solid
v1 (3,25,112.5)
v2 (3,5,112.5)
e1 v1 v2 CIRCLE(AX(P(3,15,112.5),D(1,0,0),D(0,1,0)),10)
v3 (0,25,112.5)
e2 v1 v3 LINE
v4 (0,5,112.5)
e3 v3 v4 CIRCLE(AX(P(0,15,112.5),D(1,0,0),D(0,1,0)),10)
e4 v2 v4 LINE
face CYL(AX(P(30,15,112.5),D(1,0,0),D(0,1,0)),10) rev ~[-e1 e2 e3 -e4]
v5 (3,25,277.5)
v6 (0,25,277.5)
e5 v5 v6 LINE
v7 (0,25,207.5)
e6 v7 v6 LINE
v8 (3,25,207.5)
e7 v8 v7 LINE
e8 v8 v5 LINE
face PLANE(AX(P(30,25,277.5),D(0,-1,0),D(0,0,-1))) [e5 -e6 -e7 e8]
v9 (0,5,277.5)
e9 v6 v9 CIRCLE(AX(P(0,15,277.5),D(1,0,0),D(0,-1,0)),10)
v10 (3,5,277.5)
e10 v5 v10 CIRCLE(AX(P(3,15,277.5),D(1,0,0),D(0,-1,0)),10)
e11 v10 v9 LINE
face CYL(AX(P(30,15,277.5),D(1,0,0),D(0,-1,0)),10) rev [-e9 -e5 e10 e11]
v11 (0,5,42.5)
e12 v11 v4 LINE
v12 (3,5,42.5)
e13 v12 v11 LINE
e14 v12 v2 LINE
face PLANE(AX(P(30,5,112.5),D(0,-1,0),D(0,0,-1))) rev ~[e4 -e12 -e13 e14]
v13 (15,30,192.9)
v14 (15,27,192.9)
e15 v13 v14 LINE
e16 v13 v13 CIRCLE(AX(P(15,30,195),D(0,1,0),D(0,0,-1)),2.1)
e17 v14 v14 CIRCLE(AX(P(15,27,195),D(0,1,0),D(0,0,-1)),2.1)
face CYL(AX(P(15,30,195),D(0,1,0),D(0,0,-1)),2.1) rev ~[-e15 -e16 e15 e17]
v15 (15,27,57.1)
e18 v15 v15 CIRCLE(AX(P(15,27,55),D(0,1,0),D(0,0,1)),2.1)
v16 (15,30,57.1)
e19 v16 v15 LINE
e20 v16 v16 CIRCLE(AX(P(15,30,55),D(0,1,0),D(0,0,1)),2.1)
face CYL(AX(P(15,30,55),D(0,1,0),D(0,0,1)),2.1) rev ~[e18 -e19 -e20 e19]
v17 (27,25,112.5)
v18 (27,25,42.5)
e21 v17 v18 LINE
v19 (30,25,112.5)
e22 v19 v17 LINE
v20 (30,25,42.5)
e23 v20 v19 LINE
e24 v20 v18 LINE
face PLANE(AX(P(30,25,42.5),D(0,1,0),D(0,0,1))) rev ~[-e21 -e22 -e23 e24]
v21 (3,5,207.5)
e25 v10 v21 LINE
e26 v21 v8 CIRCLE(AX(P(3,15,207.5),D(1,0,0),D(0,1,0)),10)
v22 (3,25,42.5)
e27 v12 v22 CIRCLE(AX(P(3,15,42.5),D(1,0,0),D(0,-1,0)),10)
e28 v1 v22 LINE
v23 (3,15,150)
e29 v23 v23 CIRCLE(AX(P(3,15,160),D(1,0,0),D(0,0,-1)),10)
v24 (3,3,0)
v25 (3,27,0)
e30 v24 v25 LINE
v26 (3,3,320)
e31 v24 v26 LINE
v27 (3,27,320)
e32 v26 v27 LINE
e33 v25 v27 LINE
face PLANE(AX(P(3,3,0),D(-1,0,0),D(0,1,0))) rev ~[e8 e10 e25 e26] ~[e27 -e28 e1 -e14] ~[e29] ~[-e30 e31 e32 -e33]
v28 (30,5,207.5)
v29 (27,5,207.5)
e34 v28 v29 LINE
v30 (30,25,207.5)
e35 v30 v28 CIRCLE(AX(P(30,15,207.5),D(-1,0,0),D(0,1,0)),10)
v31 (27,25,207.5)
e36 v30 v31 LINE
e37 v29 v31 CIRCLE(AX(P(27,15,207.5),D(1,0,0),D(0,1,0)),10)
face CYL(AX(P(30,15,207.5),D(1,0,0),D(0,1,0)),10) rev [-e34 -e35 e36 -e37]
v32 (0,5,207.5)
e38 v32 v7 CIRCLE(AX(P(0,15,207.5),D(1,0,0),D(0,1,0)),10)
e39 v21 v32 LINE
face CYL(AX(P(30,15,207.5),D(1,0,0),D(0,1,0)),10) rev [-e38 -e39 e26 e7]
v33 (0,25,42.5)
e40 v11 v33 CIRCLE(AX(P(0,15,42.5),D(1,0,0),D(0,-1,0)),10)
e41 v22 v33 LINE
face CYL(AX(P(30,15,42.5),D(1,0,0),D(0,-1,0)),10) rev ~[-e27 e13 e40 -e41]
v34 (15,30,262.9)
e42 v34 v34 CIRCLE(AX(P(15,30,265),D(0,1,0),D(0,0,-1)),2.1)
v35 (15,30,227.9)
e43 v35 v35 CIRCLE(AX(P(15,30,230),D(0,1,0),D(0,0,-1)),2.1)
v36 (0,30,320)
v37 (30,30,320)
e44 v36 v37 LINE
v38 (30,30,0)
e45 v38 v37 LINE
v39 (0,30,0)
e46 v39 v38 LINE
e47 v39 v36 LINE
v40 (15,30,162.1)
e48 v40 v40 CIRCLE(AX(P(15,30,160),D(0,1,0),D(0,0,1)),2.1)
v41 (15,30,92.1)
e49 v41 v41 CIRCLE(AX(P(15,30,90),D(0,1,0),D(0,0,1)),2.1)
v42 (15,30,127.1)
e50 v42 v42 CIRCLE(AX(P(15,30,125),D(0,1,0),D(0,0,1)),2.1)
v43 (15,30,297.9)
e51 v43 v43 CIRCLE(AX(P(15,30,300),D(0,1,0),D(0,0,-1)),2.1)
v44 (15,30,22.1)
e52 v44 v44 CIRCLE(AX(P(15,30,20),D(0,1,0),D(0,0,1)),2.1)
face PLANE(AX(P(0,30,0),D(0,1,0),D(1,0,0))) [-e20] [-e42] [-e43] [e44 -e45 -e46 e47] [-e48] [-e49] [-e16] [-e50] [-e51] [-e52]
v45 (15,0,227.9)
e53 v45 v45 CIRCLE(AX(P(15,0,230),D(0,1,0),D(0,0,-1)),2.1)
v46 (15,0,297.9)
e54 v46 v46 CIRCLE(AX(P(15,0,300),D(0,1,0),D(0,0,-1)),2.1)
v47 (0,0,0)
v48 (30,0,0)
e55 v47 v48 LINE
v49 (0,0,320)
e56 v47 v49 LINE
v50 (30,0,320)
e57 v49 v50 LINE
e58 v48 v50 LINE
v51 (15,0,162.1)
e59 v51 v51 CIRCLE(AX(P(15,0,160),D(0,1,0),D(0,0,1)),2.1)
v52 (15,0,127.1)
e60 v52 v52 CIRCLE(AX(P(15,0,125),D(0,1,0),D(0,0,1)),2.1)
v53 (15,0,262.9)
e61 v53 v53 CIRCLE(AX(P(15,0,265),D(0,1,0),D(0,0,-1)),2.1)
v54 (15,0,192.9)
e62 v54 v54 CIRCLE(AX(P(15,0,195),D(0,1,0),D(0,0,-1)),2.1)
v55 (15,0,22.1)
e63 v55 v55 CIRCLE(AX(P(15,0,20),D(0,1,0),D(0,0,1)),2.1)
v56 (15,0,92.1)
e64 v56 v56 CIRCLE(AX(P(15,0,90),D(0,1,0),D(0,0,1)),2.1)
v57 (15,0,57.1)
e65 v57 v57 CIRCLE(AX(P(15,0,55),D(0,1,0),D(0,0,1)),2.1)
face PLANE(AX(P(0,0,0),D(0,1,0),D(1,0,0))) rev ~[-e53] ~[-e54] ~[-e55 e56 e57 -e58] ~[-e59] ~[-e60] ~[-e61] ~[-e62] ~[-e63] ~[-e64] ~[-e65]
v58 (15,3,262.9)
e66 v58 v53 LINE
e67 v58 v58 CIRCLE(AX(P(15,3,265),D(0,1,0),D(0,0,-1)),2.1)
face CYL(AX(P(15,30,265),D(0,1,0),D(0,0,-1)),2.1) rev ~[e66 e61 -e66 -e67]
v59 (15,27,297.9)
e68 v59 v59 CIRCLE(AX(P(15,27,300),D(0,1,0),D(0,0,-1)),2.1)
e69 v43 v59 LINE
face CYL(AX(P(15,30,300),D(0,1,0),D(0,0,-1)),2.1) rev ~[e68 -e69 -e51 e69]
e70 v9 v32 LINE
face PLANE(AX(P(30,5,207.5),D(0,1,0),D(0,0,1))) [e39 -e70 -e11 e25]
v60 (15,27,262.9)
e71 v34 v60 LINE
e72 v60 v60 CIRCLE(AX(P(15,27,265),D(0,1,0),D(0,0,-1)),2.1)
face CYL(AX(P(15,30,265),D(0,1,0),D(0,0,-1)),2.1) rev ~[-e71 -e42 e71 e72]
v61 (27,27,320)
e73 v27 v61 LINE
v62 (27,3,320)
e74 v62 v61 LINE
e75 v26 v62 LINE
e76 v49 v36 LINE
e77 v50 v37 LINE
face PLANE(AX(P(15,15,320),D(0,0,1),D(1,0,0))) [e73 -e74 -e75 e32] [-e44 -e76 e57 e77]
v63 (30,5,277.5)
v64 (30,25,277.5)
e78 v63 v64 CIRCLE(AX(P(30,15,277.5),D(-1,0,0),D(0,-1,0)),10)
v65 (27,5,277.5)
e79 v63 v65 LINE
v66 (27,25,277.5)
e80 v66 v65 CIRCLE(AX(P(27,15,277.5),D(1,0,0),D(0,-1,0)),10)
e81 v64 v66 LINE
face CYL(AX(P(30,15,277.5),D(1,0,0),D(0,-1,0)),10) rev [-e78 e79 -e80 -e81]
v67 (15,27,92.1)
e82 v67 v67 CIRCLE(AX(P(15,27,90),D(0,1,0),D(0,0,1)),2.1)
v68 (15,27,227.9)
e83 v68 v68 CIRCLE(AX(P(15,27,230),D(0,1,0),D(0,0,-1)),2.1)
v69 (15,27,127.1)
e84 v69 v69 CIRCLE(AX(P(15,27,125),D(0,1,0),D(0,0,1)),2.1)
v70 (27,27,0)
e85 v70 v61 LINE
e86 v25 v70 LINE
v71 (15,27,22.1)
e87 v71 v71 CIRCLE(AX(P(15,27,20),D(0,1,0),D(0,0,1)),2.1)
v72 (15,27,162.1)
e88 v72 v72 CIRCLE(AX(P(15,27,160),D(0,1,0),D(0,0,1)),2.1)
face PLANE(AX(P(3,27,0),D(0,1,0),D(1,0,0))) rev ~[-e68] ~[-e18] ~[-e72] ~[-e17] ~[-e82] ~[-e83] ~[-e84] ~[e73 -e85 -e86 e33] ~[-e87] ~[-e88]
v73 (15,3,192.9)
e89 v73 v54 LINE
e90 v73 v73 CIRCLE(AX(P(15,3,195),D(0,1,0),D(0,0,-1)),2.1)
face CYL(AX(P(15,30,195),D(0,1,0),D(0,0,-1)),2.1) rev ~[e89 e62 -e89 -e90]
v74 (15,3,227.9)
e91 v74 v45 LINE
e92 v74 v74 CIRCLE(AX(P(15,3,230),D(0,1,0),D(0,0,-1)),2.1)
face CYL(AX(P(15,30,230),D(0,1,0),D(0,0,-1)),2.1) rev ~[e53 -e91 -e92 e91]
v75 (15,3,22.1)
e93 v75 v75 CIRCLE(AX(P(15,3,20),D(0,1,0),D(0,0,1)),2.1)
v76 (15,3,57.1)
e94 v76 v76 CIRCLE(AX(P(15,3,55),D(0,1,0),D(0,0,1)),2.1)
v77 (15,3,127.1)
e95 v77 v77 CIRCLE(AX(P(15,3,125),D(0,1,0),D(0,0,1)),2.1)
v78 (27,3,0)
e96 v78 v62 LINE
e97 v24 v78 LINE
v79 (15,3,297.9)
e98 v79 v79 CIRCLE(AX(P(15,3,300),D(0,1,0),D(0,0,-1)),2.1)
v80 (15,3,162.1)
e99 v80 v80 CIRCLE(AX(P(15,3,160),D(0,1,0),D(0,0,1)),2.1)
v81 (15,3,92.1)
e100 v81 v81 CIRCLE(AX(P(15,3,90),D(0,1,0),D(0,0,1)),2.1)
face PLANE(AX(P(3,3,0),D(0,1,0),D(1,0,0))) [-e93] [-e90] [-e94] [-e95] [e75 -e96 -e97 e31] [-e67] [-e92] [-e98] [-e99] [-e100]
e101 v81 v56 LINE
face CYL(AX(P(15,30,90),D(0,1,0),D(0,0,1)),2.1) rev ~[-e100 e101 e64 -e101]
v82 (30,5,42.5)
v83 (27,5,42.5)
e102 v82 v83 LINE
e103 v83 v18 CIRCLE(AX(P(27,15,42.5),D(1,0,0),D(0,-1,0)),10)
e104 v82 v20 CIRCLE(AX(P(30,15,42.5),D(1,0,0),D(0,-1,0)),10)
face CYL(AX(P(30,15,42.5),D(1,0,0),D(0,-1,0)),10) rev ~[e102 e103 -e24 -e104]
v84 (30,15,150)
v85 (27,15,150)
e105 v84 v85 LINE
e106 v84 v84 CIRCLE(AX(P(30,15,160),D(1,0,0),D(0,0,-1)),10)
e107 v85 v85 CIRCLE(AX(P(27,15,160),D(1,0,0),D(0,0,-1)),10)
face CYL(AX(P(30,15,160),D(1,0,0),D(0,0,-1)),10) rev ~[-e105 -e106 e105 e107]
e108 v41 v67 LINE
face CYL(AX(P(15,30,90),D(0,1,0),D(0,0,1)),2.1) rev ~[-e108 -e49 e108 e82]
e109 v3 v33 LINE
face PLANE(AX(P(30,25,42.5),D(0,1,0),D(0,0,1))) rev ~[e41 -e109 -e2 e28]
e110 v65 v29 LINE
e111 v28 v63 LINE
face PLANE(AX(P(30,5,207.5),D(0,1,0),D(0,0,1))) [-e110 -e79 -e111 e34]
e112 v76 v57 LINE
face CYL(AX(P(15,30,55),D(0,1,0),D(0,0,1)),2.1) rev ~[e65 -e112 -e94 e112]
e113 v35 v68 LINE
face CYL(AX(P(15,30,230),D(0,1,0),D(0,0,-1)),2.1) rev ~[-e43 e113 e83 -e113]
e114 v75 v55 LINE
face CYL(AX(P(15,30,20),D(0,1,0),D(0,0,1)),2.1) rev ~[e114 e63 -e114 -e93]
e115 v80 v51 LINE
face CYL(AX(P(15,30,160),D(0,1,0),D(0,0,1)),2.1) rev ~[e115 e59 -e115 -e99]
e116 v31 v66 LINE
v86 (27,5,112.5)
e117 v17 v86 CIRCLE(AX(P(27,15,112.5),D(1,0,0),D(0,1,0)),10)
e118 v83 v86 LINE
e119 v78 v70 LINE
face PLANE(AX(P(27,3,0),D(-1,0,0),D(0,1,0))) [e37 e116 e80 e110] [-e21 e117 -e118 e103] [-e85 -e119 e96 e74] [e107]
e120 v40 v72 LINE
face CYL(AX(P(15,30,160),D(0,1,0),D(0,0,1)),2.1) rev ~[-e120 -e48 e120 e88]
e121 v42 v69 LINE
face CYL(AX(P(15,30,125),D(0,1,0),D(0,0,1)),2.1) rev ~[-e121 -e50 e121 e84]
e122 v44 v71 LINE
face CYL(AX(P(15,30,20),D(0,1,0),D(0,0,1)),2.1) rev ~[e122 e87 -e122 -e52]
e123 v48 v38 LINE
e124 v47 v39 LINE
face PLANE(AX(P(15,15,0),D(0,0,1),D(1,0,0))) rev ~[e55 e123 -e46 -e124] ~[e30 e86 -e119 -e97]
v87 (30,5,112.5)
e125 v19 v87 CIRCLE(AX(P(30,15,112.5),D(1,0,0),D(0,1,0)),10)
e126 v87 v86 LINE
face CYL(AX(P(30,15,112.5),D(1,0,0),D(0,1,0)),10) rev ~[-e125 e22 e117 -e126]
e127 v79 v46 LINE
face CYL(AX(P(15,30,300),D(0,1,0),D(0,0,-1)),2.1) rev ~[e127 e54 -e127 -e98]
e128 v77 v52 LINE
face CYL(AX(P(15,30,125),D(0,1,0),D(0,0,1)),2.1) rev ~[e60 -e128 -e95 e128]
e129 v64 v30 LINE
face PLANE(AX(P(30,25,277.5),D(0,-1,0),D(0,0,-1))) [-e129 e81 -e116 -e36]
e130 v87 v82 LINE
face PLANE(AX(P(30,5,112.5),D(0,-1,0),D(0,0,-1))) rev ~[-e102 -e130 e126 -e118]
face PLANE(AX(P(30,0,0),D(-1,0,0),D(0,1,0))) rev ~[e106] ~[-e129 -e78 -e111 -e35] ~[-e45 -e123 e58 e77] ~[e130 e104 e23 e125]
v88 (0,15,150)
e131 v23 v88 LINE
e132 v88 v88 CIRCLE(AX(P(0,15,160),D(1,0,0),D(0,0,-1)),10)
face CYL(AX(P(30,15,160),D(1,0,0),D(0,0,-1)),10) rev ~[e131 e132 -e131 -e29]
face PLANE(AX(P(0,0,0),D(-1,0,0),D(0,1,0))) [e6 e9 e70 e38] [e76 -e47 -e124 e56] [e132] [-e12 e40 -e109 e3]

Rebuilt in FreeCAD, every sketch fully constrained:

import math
import FreeCAD as App
import Part
import Sketcher

doc = App.newDocument("Part")
body = doc.addObject("PartDesign::Body", "Body")

sketch1 = doc.addObject("Sketcher::SketchObject", "Sketch")
body.addObject(sketch1)
sketch1.AttachmentSupport = (doc.XY_Plane, [""])
sketch1.MapMode = "FlatFace"
sketch1.addGeometry([
    Part.LineSegment(App.Vector(0, 30, 0), App.Vector(0, 0, 0)),
    Part.LineSegment(App.Vector(0, 0, 0), App.Vector(30, 0, 0)),
    Part.LineSegment(App.Vector(30, 0, 0), App.Vector(30, 30, 0)),
    Part.LineSegment(App.Vector(30, 30, 0), App.Vector(0, 30, 0)),
    Part.LineSegment(App.Vector(27, 3, 0), App.Vector(3, 3, 0)),
    Part.LineSegment(App.Vector(3, 3, 0), App.Vector(3, 27, 0)),
    Part.LineSegment(App.Vector(3, 27, 0), App.Vector(27, 27, 0)),
    Part.LineSegment(App.Vector(27, 27, 0), App.Vector(27, 3, 0)),
], False)
sketch1.addConstraint([
    Sketcher.Constraint("Coincident", 0, 2, 1, 1),
    Sketcher.Constraint("Coincident", 1, 2, 2, 1),
    Sketcher.Constraint("Coincident", 2, 2, 3, 1),
    Sketcher.Constraint("Coincident", 3, 2, 0, 1),
    Sketcher.Constraint("Coincident", 4, 2, 5, 1),
    Sketcher.Constraint("Coincident", 5, 2, 6, 1),
    Sketcher.Constraint("Coincident", 6, 2, 7, 1),
    Sketcher.Constraint("Coincident", 7, 2, 4, 1),
    Sketcher.Constraint("Vertical", 0),
    Sketcher.Constraint("Horizontal", 1),
    Sketcher.Constraint("Vertical", 2),
    Sketcher.Constraint("Horizontal", 3),
    Sketcher.Constraint("Horizontal", 4),
    Sketcher.Constraint("Vertical", 5),
    Sketcher.Constraint("Horizontal", 6),
    Sketcher.Constraint("Vertical", 7),
    Sketcher.Constraint("Coincident", 0, 2, -1, 1),
    Sketcher.Constraint("Equal", 3, 0),
    Sketcher.Constraint("Equal", 6, 5),
    Sketcher.Constraint("DistanceX", 1, 1, 1, 2, 30.0),
    Sketcher.Constraint("DistanceX", 4, 2, 4, 1, 24.0),
    Sketcher.Constraint("DistanceX", -1, 1, 4, 2, 3.0),
    Sketcher.Constraint("DistanceY", -1, 1, 4, 2, 3.0),
])
pad1 = doc.addObject("PartDesign::Pad", "Pad")
body.addObject(pad1)
pad1.Profile = sketch1
pad1.Length = 320

sketch2 = doc.addObject("Sketcher::SketchObject", "Sketch001")
body.addObject(sketch2)
sketch2.AttachmentSupport = (doc.YZ_Plane, [""])
sketch2.MapMode = "FlatFace"
sketch2.AttachmentOffset = App.Placement(App.Vector(0, 0, 30), App.Rotation())
sketch2.addGeometry([
    Part.Circle(App.Vector(15, 160, 0), App.Vector(0, 0, 1), 10),
    Part.LineSegment(App.Vector(25, 207.5, 0), App.Vector(25, 277.5, 0)),
    Part.ArcOfCircle(Part.Circle(App.Vector(15, 277.5, 0), App.Vector(0, 0, 1), 10), math.radians(0), math.radians(180)),
    Part.LineSegment(App.Vector(5, 277.5, 0), App.Vector(5, 207.5, 0)),
    Part.ArcOfCircle(Part.Circle(App.Vector(15, 207.5, 0), App.Vector(0, 0, 1), 10), math.radians(180), math.radians(360)),
    Part.LineSegment(App.Vector(25, 42.5, 0), App.Vector(25, 112.5, 0)),
    Part.ArcOfCircle(Part.Circle(App.Vector(15, 112.5, 0), App.Vector(0, 0, 1), 10), math.radians(0), math.radians(180)),
    Part.LineSegment(App.Vector(5, 112.5, 0), App.Vector(5, 42.5, 0)),
    Part.ArcOfCircle(Part.Circle(App.Vector(15, 42.5, 0), App.Vector(0, 0, 1), 10), math.radians(180), math.radians(360)),
], False)
sketch2.addConstraint([
    Sketcher.Constraint("Tangent", 1, 2, 2, 1),
    Sketcher.Constraint("Tangent", 2, 2, 3, 1),
    Sketcher.Constraint("Tangent", 3, 2, 4, 1),
    Sketcher.Constraint("Tangent", 4, 2, 1, 1),
    Sketcher.Constraint("Tangent", 5, 2, 6, 1),
    Sketcher.Constraint("Tangent", 6, 2, 7, 1),
    Sketcher.Constraint("Tangent", 7, 2, 8, 1),
    Sketcher.Constraint("Tangent", 8, 2, 5, 1),
    Sketcher.Constraint("Vertical", 1),
    Sketcher.Constraint("Vertical", 3),
    Sketcher.Constraint("Vertical", 5),
    Sketcher.Constraint("Vertical", 7),
    Sketcher.Constraint("Equal", 0, 2),
    Sketcher.Constraint("Equal", 4, 6),
    Sketcher.Constraint("Vertical", 0, 3, 2, 3),
    Sketcher.Constraint("Vertical", 4, 3, 6, 3),
    Sketcher.Constraint("Equal", 3, 5),
    Sketcher.Constraint("Diameter", 0, 20.0),
    Sketcher.Constraint("DistanceY", 1, 1, 1, 2, 70.0),
    Sketcher.Constraint("DistanceX", -1, 1, 0, 3, 15.0),
    Sketcher.Constraint("DistanceY", -1, 1, 0, 3, 160.0),
    Sketcher.Constraint("DistanceY", 6, 3, 4, 3, 95.0),
    Sketcher.Constraint("DistanceY", -1, 1, 2, 3, 277.5),
])
pocket1 = doc.addObject("PartDesign::Pocket", "Pocket")
body.addObject(pocket1)
pocket1.Profile = sketch2
pocket1.Type = "ThroughAll"

sketch3 = doc.addObject("Sketcher::SketchObject", "Sketch002")
body.addObject(sketch3)
sketch3.AttachmentSupport = (doc.XZ_Plane, [""])
sketch3.MapMode = "FlatFace"
sketch3.AttachmentOffset = App.Placement(App.Vector(0, 0, -30), App.Rotation())
sketch3.addGeometry([
    Part.Circle(App.Vector(15, 20, 0), App.Vector(0, 0, 1), 2.1),
    Part.Circle(App.Vector(15, 55, 0), App.Vector(0, 0, 1), 2.1),
    Part.Circle(App.Vector(15, 90, 0), App.Vector(0, 0, 1), 2.1),
    Part.Circle(App.Vector(15, 125, 0), App.Vector(0, 0, 1), 2.1),
    Part.Circle(App.Vector(15, 300, 0), App.Vector(0, 0, 1), 2.1),
    Part.Circle(App.Vector(15, 265, 0), App.Vector(0, 0, 1), 2.1),
    Part.Circle(App.Vector(15, 230, 0), App.Vector(0, 0, 1), 2.1),
    Part.Circle(App.Vector(15, 195, 0), App.Vector(0, 0, 1), 2.1),
    Part.Circle(App.Vector(15, 160, 0), App.Vector(0, 0, 1), 2.1),
], False)
sketch3.addConstraint([
    Sketcher.Constraint("Equal", 0, 1),
    Sketcher.Constraint("Equal", 1, 2),
    Sketcher.Constraint("Equal", 2, 3),
    Sketcher.Constraint("Equal", 3, 4),
    Sketcher.Constraint("Equal", 4, 5),
    Sketcher.Constraint("Equal", 5, 6),
    Sketcher.Constraint("Equal", 6, 7),
    Sketcher.Constraint("Equal", 7, 8),
    Sketcher.Constraint("Vertical", 0, 3, 1, 3),
    Sketcher.Constraint("Vertical", 1, 3, 2, 3),
    Sketcher.Constraint("Vertical", 2, 3, 3, 3),
    Sketcher.Constraint("Vertical", 3, 3, 4, 3),
    Sketcher.Constraint("Vertical", 4, 3, 5, 3),
    Sketcher.Constraint("Vertical", 5, 3, 6, 3),
    Sketcher.Constraint("Vertical", 6, 3, 7, 3),
    Sketcher.Constraint("Vertical", 7, 3, 8, 3),
    Sketcher.Constraint("Diameter", 0, 4.2),
    Sketcher.Constraint("DistanceX", -1, 1, 0, 3, 15.0),
    Sketcher.Constraint("DistanceY", -1, 1, 0, 3, 20.0),
    Sketcher.Constraint("DistanceY", -1, 1, 1, 3, 55.0),
    Sketcher.Constraint("DistanceY", -1, 1, 2, 3, 90.0),
    Sketcher.Constraint("DistanceY", -1, 1, 3, 3, 125.0),
    Sketcher.Constraint("DistanceY", -1, 1, 4, 3, 300.0),
    Sketcher.Constraint("DistanceY", -1, 1, 5, 3, 265.0),
    Sketcher.Constraint("DistanceY", -1, 1, 6, 3, 230.0),
    Sketcher.Constraint("DistanceY", -1, 1, 7, 3, 195.0),
    Sketcher.Constraint("DistanceY", -1, 1, 8, 3, 160.0),
])
pocket2 = doc.addObject("PartDesign::Pocket", "Pocket001")
body.addObject(pocket2)
pocket2.Profile = sketch3
pocket2.Type = "ThroughAll"
pocket2.Reversed = True

doc.recompute()
